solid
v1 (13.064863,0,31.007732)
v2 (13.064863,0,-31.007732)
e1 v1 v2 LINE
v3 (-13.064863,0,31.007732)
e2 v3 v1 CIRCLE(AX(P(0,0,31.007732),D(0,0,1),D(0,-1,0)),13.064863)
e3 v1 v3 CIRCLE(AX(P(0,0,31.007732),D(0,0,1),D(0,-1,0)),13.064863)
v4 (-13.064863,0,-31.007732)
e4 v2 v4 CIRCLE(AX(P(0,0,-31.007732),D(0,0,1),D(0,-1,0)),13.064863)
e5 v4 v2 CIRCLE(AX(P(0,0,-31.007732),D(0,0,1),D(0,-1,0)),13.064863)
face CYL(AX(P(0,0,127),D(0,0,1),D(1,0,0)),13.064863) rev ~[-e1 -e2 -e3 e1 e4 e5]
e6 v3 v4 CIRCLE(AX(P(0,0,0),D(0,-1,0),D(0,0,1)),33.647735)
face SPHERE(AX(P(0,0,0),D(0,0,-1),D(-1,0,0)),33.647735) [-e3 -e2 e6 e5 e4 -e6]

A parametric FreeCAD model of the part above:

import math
import FreeCAD as App
import Part
import Sketcher
from FreeCAD import Vector
Q = App.Units.Quantity

doc = App.newDocument("Part")
params = doc.addObject("Spreadsheet::Sheet", "Params")
for row, (alias, value) in enumerate([
    ("revolution_angle", "360 deg"),
    ("pocket1_length", "15 in"),
], start=1):
    params.set(f"A{row}", alias)
    params.set(f"B{row}", "=" + value)
    params.setAlias(f"B{row}", alias)

body = doc.addObject("PartDesign::Body", "Body")

sketch1 = body.newObject("Sketcher::SketchObject", "Sketch")
sketch1.AttachmentSupport = (doc.getObject("XZ_Plane"), [""])
sketch1.MapMode = "FlatFace"
sketch1.addGeometry([
    Part.LineSegment(Vector(0, -33.647735, 0), Vector(0, 33.647735, 0)),
    Part.ArcOfCircle(Part.Circle(Vector(0, 0, 0), Vector(0, 0, 1), 33.647735), math.radians(90), math.radians(270)),
], False)
sketch1.addConstraint([
    Sketcher.Constraint("Coincident", 0, 1, 1, 2),
    Sketcher.Constraint("Coincident", 1, 1, 0, 2),
    Sketcher.Constraint("Vertical", 0),
    Sketcher.Constraint("Coincident", 1, 3, -1, 1),
    Sketcher.Constraint("PointOnObject", 0, 1, -2),
    Sketcher.Constraint("Radius", 1, Q("33.647735 mm")),
])
revolution = body.newObject("PartDesign::Revolution", "Revolution")
revolution.Profile = sketch1
revolution.ReferenceAxis = (sketch1, ["V_Axis"])
revolution.setExpression("Angle", "Params.revolution_angle")

sketch2 = body.newObject("Sketcher::SketchObject", "Sketch001")
sketch2.AttachmentSupport = (doc.getObject("XY_Plane"), [""])
sketch2.MapMode = "FlatFace"
sketch2.AttachmentOffset = App.Placement(Vector(0, 0, 5 * 25.4), App.Rotation())
sketch2.addGeometry(Part.Circle(Vector(0, 0, 0), Vector(0, 0, 1), 13.064863), False)
sketch2.addConstraint([
    Sketcher.Constraint("Coincident", 0, 3, -1, 1),
    Sketcher.Constraint("Diameter", 0, Q("26.129726 mm")),
])
pocket1 = body.newObject("PartDesign::Pocket", "Pocket")
pocket1.Profile = sketch2
pocket1.setExpression("Length", "Params.pocket1_length")

doc.recompute()
